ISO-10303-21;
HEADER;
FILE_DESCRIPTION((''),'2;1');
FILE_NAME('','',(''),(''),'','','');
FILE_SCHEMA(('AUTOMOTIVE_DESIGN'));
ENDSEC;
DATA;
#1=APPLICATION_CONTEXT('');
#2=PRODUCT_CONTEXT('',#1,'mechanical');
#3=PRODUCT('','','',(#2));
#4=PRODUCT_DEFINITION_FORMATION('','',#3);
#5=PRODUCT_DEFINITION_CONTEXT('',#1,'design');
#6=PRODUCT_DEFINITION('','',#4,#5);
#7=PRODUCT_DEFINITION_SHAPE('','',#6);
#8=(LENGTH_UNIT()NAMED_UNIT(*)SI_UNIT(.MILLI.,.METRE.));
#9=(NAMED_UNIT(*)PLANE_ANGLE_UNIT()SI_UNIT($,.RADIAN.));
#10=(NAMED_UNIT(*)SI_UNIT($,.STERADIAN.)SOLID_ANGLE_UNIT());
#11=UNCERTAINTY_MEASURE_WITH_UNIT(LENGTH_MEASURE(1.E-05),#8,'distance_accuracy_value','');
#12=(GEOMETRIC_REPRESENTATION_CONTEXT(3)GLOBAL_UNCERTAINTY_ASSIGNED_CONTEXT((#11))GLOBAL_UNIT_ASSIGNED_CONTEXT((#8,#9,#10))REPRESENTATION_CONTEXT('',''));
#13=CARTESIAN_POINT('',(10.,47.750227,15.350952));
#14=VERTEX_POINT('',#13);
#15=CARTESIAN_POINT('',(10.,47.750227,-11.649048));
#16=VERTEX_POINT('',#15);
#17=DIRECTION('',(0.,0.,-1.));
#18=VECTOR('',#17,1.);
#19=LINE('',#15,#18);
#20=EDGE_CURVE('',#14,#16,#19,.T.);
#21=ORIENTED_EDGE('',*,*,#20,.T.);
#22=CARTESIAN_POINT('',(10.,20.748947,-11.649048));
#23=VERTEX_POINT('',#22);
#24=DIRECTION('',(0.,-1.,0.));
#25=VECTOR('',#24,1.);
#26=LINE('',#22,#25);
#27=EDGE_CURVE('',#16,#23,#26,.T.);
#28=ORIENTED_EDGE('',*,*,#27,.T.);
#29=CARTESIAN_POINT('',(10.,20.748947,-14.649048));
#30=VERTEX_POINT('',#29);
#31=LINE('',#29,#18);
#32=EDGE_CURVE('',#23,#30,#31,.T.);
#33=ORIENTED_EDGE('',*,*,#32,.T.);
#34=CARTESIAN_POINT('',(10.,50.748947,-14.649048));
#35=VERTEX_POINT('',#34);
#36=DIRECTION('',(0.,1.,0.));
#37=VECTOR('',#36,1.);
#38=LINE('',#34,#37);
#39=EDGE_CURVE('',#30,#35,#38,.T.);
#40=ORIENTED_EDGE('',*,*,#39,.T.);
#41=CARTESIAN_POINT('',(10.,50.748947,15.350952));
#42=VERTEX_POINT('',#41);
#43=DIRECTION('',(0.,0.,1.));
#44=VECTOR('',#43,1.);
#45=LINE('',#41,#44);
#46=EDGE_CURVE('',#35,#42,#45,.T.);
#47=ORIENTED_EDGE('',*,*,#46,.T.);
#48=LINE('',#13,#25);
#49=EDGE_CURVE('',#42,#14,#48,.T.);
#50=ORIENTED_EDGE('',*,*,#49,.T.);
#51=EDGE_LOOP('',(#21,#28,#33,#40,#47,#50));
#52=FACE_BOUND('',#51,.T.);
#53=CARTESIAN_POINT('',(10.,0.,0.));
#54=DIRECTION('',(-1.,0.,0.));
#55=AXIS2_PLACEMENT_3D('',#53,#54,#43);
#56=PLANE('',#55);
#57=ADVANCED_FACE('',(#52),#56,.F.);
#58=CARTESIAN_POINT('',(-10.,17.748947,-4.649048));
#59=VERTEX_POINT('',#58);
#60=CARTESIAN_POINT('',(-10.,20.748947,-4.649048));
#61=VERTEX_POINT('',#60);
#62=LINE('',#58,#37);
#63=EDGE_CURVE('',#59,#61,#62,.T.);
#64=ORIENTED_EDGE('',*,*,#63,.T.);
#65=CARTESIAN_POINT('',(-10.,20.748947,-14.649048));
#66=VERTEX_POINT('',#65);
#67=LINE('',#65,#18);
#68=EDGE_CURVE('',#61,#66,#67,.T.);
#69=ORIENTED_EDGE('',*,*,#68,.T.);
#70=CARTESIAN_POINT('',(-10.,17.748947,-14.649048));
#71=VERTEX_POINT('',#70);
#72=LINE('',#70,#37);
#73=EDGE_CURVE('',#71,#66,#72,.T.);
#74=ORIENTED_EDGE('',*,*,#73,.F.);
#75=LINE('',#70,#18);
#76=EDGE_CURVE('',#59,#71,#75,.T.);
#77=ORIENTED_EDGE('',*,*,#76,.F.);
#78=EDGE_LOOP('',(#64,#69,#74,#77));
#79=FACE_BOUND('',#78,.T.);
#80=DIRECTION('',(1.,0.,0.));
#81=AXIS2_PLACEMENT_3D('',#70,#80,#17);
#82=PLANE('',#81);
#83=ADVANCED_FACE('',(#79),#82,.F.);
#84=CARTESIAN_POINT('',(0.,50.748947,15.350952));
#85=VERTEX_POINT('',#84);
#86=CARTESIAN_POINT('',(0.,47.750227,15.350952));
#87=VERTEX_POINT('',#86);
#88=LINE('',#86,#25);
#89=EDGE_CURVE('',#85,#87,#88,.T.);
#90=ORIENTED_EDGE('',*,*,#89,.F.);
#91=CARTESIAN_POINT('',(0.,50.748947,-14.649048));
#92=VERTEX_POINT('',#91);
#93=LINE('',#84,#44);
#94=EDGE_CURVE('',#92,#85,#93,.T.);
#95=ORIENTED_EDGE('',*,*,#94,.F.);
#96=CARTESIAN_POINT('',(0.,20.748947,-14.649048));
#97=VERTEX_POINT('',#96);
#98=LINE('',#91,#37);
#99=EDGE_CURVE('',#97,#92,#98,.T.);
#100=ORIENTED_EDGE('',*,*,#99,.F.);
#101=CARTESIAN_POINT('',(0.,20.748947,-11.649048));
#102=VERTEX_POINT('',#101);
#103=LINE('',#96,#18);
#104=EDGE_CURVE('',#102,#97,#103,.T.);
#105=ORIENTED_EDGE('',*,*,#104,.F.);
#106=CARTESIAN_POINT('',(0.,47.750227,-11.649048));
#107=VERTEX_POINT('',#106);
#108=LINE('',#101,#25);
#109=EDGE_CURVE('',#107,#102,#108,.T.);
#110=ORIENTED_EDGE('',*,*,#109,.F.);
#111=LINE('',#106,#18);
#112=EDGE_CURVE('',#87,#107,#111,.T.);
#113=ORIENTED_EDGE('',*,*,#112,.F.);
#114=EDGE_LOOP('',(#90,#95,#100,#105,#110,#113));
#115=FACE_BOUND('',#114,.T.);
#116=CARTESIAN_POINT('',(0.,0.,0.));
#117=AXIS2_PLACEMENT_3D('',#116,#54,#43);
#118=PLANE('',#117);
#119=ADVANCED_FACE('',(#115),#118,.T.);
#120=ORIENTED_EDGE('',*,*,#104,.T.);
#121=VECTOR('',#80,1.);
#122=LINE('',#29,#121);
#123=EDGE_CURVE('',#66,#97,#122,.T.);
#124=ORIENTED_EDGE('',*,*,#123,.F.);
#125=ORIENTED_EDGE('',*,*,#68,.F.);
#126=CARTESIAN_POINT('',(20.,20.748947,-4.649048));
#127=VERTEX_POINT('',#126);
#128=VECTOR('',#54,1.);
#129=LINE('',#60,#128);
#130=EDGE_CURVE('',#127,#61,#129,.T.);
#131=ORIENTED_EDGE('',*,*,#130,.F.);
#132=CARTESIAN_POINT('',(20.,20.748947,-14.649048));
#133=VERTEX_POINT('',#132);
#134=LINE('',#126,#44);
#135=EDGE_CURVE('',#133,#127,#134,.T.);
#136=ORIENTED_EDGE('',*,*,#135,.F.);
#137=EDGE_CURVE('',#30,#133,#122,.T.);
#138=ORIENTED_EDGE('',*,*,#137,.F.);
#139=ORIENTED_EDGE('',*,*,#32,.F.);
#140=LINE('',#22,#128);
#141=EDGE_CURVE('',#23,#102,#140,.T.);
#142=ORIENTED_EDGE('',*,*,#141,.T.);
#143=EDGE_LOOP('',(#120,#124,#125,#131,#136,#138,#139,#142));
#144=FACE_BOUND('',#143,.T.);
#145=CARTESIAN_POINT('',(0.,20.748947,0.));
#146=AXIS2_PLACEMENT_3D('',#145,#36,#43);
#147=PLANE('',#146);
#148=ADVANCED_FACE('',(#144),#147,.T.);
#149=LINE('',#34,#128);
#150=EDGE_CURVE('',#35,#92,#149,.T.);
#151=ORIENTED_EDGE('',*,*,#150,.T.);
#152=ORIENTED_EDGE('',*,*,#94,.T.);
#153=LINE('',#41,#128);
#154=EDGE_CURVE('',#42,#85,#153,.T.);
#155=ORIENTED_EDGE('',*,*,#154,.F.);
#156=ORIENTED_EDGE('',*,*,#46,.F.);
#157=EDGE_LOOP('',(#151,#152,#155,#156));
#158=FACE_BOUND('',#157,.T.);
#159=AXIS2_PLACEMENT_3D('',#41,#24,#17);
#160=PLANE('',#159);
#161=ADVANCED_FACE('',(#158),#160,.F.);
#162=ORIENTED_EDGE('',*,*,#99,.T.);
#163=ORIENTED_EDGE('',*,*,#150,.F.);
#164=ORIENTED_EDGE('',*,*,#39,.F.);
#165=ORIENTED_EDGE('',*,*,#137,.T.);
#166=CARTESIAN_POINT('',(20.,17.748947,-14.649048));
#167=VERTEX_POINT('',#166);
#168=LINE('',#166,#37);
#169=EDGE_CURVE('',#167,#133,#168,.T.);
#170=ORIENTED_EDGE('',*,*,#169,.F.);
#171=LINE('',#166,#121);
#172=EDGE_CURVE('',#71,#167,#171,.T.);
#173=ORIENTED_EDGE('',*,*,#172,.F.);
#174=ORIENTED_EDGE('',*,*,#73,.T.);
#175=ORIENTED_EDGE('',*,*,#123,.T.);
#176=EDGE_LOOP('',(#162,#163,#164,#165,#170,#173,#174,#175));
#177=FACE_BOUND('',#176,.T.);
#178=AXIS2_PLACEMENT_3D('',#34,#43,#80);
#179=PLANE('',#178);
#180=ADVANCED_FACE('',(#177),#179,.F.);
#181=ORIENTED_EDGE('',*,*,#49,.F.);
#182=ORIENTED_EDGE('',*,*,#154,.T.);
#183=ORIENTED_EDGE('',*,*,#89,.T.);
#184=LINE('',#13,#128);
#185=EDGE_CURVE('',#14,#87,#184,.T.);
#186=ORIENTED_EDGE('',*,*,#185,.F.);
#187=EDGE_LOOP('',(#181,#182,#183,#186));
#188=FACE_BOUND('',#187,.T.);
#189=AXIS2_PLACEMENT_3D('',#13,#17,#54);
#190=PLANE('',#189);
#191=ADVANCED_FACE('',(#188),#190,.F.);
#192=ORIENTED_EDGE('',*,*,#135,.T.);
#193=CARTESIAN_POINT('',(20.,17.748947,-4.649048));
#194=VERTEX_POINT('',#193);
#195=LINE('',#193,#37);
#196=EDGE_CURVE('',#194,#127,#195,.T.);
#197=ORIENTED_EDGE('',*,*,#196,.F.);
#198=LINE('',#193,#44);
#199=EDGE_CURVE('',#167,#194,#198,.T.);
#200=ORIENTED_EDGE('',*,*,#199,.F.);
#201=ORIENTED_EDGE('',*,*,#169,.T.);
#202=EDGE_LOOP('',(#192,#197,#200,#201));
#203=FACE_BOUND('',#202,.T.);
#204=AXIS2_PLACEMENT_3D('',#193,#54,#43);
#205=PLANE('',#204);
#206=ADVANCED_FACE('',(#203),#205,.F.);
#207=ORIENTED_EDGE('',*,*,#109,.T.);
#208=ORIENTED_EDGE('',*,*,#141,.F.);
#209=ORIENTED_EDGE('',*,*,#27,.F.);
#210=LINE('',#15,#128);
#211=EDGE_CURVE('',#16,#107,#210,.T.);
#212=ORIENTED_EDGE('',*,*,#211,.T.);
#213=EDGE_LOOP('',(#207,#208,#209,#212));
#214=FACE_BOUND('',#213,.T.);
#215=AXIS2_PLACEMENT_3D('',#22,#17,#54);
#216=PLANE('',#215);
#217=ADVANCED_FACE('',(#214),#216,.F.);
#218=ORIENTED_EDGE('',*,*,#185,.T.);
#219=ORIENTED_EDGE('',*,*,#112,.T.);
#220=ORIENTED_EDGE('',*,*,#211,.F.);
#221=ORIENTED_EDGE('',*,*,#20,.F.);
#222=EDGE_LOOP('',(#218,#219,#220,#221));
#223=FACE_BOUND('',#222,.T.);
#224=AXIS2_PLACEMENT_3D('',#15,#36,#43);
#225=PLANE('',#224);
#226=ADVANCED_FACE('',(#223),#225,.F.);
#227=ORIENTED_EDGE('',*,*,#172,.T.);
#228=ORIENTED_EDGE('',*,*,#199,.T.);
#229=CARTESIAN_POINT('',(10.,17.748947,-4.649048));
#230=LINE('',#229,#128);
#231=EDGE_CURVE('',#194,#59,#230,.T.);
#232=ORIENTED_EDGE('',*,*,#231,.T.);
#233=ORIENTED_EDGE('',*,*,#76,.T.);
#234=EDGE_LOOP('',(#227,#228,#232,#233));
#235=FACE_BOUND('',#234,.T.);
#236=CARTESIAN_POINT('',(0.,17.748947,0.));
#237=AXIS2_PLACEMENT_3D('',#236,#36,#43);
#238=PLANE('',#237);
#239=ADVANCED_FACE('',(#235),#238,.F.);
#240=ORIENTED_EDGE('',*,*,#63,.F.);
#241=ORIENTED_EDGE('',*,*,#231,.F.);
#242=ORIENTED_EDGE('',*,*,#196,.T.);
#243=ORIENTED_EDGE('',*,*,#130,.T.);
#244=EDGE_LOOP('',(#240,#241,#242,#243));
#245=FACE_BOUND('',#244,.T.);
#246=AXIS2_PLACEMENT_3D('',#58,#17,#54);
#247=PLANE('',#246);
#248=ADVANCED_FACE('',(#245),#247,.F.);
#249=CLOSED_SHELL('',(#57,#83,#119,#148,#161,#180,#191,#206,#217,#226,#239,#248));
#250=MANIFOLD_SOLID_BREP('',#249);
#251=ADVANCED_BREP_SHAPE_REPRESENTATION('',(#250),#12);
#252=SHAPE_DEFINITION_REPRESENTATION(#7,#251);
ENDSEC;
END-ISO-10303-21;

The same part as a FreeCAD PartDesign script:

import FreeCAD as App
import Part
import Sketcher

V = App.Vector
Q = App.Units.Quantity


def add_polygon(sketch, points):
    """Adds a closed chain of lines whose ends are joined by coincident constraints."""
    first, n = sketch.GeometryCount, len(points)
    for a, b in zip(points, points[1:] + points[:1]):
        sketch.addGeometry(Part.LineSegment(App.Vector(*a, 0), App.Vector(*b, 0)), False)
    for i in range(n):
        sketch.addConstraint(Sketcher.Constraint("Coincident", first + i, 2, first + (i + 1) % n, 1))

doc = App.newDocument("Part")
params = doc.addObject("Spreadsheet::Sheet", "Params")
for row, (alias, value) in enumerate([
    ("sketch1_width", "30 mm"),
    ("sketch1_height", "27 mm"),
    ("pad1_length", "10 mm"),
    ("sketch2_width", "30 mm"),
    ("sketch2_height", "10 mm"),
    ("pad2_length", "3 mm"),
], start=1):
    params.set(f"A{row}", alias)
    params.set(f"B{row}", "=" + value)
    params.setAlias(f"B{row}", alias)

body = doc.addObject("PartDesign::Body", "Body")

sketch1 = body.newObject("Sketcher::SketchObject", "Sketch")
sketch1.AttachmentSupport = (doc.getObject("YZ_Plane"), [""])
sketch1.MapMode = "FlatFace"
add_polygon(sketch1, [(50.748947, -14.649048), (50.748947, 15.350952), (47.750227, 15.350952), (47.750227, -11.649048), (20.748947, -11.649048), (20.748947, -14.649048)])
sketch1.addConstraint([
    Sketcher.Constraint("Vertical", 0),
    Sketcher.Constraint("Horizontal", 1),
    Sketcher.Constraint("Vertical", 2),
    Sketcher.Constraint("Horizontal", 3),
    Sketcher.Constraint("Vertical", 4),
    Sketcher.Constraint("Horizontal", 5),
    Sketcher.Constraint("Equal", 5, 0),
    Sketcher.Constraint("DistanceX", 5, 1, 5, 2, Q("30 mm")),
    Sketcher.Constraint("DistanceY", 2, 2, 2, 1, Q("27 mm")),
    Sketcher.Constraint("DistanceX", 1, 2, 1, 1, Q("2.99872 mm")),
    Sketcher.Constraint("DistanceY", -1, 1, 0, 2, Q("15.350952 mm")),
    Sketcher.Constraint("DistanceX", -1, 1, 0, 2, Q("50.748947 mm")),
])
sketch1.setExpression("Constraints[13]", "Params.sketch1_width")
sketch1.setExpression("Constraints[14]", "Params.sketch1_height")
pad1 = body.newObject("PartDesign::Pad", "Pad")
pad1.Profile = sketch1
pad1.setExpression("Length", "Params.pad1_length")

sketch2 = body.newObject("Sketcher::SketchObject", "Sketch001")
sketch2.AttachmentSupport = (doc.getObject("XZ_Plane"), [""])
sketch2.MapMode = "FlatFace"
sketch2.AttachmentOffset = App.Placement(V(0, 0, -20.748947), App.Rotation())
add_polygon(sketch2, [(-10, -14.649048), (20, -14.649048), (20, -4.649048), (-10, -4.649048)])
sketch2.addConstraint([
    Sketcher.Constraint("Horizontal", 0),
    Sketcher.Constraint("Vertical", 1),
    Sketcher.Constraint("Horizontal", 2),
    Sketcher.Constraint("Vertical", 3),
    Sketcher.Constraint("DistanceX", 0, 1, 0, 2, Q("30 mm")),
    Sketcher.Constraint("DistanceY", 1, 1, 1, 2, Q("10 mm")),
    Sketcher.Constraint("DistanceX", -1, 1, 0, 2, Q("20 mm")),
    Sketcher.Constraint("DistanceY", 0, 2, -1, 1, Q("14.649048 mm")),
])
sketch2.setExpression("Constraints[8]", "Params.sketch2_width")
sketch2.setExpression("Constraints[9]", "Params.sketch2_height")
pad2 = body.newObject("PartDesign::Pad", "Pad001")
pad2.Profile = sketch2
pad2.setExpression("Length", "Params.pad2_length")

doc.recompute()
